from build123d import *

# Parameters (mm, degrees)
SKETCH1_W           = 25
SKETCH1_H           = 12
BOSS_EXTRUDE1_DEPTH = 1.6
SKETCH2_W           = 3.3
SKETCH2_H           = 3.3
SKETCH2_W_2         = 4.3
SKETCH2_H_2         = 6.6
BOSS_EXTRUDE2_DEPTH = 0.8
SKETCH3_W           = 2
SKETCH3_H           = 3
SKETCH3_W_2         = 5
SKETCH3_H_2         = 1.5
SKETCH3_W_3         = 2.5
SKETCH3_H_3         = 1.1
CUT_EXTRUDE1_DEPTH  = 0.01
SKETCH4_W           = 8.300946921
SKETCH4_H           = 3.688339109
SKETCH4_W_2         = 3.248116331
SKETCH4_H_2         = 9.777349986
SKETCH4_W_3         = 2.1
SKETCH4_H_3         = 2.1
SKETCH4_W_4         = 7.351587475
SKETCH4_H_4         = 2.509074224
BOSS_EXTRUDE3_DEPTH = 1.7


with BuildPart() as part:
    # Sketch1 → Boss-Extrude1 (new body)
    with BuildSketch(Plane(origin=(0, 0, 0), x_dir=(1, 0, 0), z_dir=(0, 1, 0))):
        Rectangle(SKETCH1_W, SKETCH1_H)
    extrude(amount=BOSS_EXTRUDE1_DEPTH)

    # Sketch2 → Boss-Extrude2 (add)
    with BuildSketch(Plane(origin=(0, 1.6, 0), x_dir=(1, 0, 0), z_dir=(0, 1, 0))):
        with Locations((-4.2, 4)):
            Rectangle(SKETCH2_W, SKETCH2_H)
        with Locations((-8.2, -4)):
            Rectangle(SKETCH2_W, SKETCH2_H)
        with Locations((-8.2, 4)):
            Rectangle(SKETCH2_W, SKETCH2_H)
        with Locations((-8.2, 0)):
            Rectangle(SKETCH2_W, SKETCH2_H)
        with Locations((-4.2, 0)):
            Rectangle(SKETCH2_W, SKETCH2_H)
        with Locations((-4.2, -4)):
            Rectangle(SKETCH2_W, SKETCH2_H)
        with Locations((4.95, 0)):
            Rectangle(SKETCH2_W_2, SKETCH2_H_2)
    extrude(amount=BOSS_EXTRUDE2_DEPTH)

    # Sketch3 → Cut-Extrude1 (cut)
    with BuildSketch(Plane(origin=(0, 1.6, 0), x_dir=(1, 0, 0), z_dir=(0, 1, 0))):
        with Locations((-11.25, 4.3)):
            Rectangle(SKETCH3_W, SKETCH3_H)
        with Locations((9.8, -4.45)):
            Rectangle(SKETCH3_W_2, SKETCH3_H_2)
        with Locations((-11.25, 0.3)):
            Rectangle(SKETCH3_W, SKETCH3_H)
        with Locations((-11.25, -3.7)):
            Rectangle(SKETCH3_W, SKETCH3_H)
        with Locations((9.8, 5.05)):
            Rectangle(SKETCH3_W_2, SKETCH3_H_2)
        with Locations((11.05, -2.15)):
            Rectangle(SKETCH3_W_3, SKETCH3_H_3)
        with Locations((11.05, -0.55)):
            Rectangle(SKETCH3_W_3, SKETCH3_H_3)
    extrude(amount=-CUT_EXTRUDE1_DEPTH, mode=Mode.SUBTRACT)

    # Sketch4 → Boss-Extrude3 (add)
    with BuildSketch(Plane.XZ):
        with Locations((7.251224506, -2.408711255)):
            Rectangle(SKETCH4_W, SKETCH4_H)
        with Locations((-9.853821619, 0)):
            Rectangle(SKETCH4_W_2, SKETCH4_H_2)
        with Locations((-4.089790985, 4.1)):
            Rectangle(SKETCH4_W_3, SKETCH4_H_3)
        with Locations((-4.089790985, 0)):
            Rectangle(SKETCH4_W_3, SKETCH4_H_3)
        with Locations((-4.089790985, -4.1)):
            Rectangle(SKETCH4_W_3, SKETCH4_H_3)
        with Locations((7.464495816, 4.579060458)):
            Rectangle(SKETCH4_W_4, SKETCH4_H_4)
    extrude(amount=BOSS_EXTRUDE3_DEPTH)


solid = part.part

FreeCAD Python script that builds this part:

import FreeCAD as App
import Part
import Sketcher
from FreeCAD import Vector
Q = App.Units.Quantity


def add_polygon(sketch, points):
    """Adds a closed chain of lines whose ends are joined by coincident constraints."""
    first, n = sketch.GeometryCount, len(points)
    for a, b in zip(points, points[1:] + points[:1]):
        sketch.addGeometry(Part.LineSegment(App.Vector(*a, 0), App.Vector(*b, 0)), False)
    for i in range(n):
        sketch.addConstraint(Sketcher.Constraint("Coincident", first + i, 2, first + (i + 1) % n, 1))

doc = App.newDocument("Part")
params = doc.addObject("Spreadsheet::Sheet", "Params")
for row, (alias, value) in enumerate([
    ("sketch1_width", "25 mm"),
    ("sketch1_height", "12 mm"),
    ("pad1_length", "1.6 mm"),
    ("sketch2_width", "3.3 mm"),
    ("sketch2_width2", "4.3 mm"),
    ("sketch2_height", "6.6 mm"),
    ("pad2_length", "0.8 mm"),
    ("sketch3_width", "2 mm"),
    ("sketch3_width2", "5 mm"),
    ("sketch3_height", "3 mm"),
    ("sketch3_width3", "2.5 mm"),
    ("sketch3_height2", "1.5 mm"),
    ("pocket1_length", "0.01 mm"),
    ("sketch4_width", "2.1 mm"),
    ("pad3_length", "1.7 mm"),
], start=1):
    params.set(f"A{row}", alias)
    params.set(f"B{row}", "=" + value)
    params.setAlias(f"B{row}", alias)

body = doc.addObject("PartDesign::Body", "Body")

# Sketch on XZ plane
sketch1 = body.newObject("Sketcher::SketchObject", "Sketch")
sketch1.AttachmentSupport = (doc.getObject("XZ_Plane"), [""])
sketch1.MapMode = "FlatFace"
add_polygon(sketch1, [(-12.5, -6), (-12.5, 6), (12.5, 6), (12.5, -6)])  # lines 0-3
sketch1.addConstraint([
    Sketcher.Constraint("Vertical", 0),
    Sketcher.Constraint("Horizontal", 1),
    Sketcher.Constraint("Vertical", 2),
    Sketcher.Constraint("Horizontal", 3),
    Sketcher.Constraint("Symmetric", 0, 2, 2, 2, -1, 1),
    Sketcher.Constraint("DistanceX", 1, 1, 1, 2, Q("25 mm")),
    Sketcher.Constraint("DistanceY", 0, 1, 0, 2, Q("12 mm")),
])
sketch1.setExpression("Constraints[9]", "Params.sketch1_width")
sketch1.setExpression("Constraints[10]", "Params.sketch1_height")
pad1 = body.newObject("PartDesign::Pad", "Pad")
pad1.Profile = sketch1
pad1.setExpression("Length", "Params.pad1_length")
pad1.Reversed = True

# Sketch on XZ plane
sketch2 = body.newObject("Sketcher::SketchObject", "Sketch001")
sketch2.AttachmentSupport = (doc.getObject("XZ_Plane"), [""])
sketch2.MapMode = "FlatFace"
sketch2.AttachmentOffset = App.Placement(Vector(0, 0, -1.6), App.Rotation())
add_polygon(sketch2, [(-5.85, -5.65), (-5.85, -2.35), (-2.55, -2.35), (-2.55, -5.65)])  # lines 0-3
add_polygon(sketch2, [(-9.85, 2.35), (-9.85, 5.65), (-6.55, 5.65), (-6.55, 2.35)])  # lines 4-7
add_polygon(sketch2, [(-9.85, -5.65), (-9.85, -2.35), (-6.55, -2.35), (-6.55, -5.65)])  # lines 8-11
add_polygon(sketch2, [(-9.85, -1.65), (-9.85, 1.65), (-6.55, 1.65), (-6.55, -1.65)])  # lines 12-15
add_polygon(sketch2, [(-5.85, -1.65), (-5.85, 1.65), (-2.55, 1.65), (-2.55, -1.65)])  # lines 16-19
add_polygon(sketch2, [(-5.85, 2.35), (-5.85, 5.65), (-2.55, 5.65), (-2.55, 2.35)])  # lines 20-23
add_polygon(sketch2, [(2.8, -3.3), (2.8, 3.3), (7.1, 3.3), (7.1, -3.3)])  # lines 24-27
sketch2.addConstraint([
    Sketcher.Constraint("Vertical", 0),
    Sketcher.Constraint("Horizontal", 1),
    Sketcher.Constraint("Vertical", 2),
    Sketcher.Constraint("Horizontal", 3),
    Sketcher.Constraint("Vertical", 4),
    Sketcher.Constraint("Horizontal", 5),
    Sketcher.Constraint("Vertical", 6),
    Sketcher.Constraint("Horizontal", 7),
    Sketcher.Constraint("Vertical", 8),
    Sketcher.Constraint("Horizontal", 9),
    Sketcher.Constraint("Vertical", 10),
    Sketcher.Constraint("Horizontal", 11),
    Sketcher.Constraint("Vertical", 12),
    Sketcher.Constraint("Horizontal", 13),
    Sketcher.Constraint("Vertical", 14),
    Sketcher.Constraint("Horizontal", 15),
    Sketcher.Constraint("Vertical", 16),
    Sketcher.Constraint("Horizontal", 17),
    Sketcher.Constraint("Vertical", 18),
    Sketcher.Constraint("Horizontal", 19),
    Sketcher.Constraint("Vertical", 20),
    Sketcher.Constraint("Horizontal", 21),
    Sketcher.Constraint("Vertical", 22),
    Sketcher.Constraint("Horizontal", 23),
    Sketcher.Constraint("Vertical", 24),
    Sketcher.Constraint("Horizontal", 25),
    Sketcher.Constraint("Vertical", 26),
    Sketcher.Constraint("Horizontal", 27),
    Sketcher.Constraint("Symmetric", 7, 2, 8, 2, -1),
    Sketcher.Constraint("Symmetric", 5, 2, 10, 2, -1),
    Sketcher.Constraint("Symmetric", 3, 2, 20, 2, -1),
    Sketcher.Constraint("Symmetric", 1, 2, 22, 2, -1),
    Sketcher.Constraint("Horizontal", 1, 2, 8, 2),
    Sketcher.Constraint("Horizontal", 3, 2, 10, 2),
    Sketcher.Constraint("Horizontal", 13, 2, 16, 2),
    Sketcher.Constraint("Horizontal", 15, 2, 18, 2),
    Sketcher.Constraint("Vertical", 11, 2, 12, 2),
    Sketcher.Constraint("Vertical", 10, 2, 13, 2),
    Sketcher.Constraint("Vertical", 3, 2, 16, 2),
    Sketcher.Constraint("Vertical", 2, 2, 17, 2),
    Sketcher.Constraint("Equal", 3, 5),
    Sketcher.Constraint("Equal", 23, 0),
    Sketcher.Constraint("Equal", 10, 12),
    Sketcher.Constraint("DistanceX", 1, 1, 1, 2, Q("3.3 mm")),
    Sketcher.Constraint("DistanceX", 25, 1, 25, 2, Q("4.3 mm")),
    Sketcher.Constraint("DistanceY", 24, 1, 24, 2, Q("6.6 mm")),
    Sketcher.Constraint("DistanceX", 4, 2, 0, 2, Q("4 mm")),
    Sketcher.Constraint("DistanceY", 0, 2, 4, 2, Q("8 mm")),
    Sketcher.Constraint("DistanceY", 12, 2, 4, 2, Q("4 mm")),
    Sketcher.Constraint("DistanceX", -1, 1, 24, 2, Q("2.8 mm")),
    Sketcher.Constraint("DistanceY", -1, 1, 24, 2, Q("3.3 mm")),
    Sketcher.Constraint("DistanceX", 0, 2, -1, 1, Q("5.85 mm")),
])
sketch2.setExpression("Constraints[71]", "Params.sketch2_width")
sketch2.setExpression("Constraints[72]", "Params.sketch2_width2")
sketch2.setExpression("Constraints[73]", "Params.sketch2_height")
pad2 = body.newObject("PartDesign::Pad", "Pad001")
pad2.Profile = sketch2
pad2.setExpression("Length", "Params.pad2_length")
pad2.Reversed = True

# Sketch on XZ plane
sketch3 = body.newObject("Sketcher::SketchObject", "Sketch002")
sketch3.AttachmentSupport = (doc.getObject("XZ_Plane"), [""])
sketch3.MapMode = "FlatFace"
sketch3.AttachmentOffset = App.Placement(Vector(0, 0, -1.6), App.Rotation())
add_polygon(sketch3, [(-12.25, -5.8), (-12.25, -2.8), (-10.25, -2.8), (-10.25, -5.8)])  # lines 0-3
add_polygon(sketch3, [(7.3, 3.7), (7.3, 5.2), (12.3, 5.2), (12.3, 3.7)])  # lines 4-7
add_polygon(sketch3, [(-12.25, -1.8), (-12.25, 1.2), (-10.25, 1.2), (-10.25, -1.8)])  # lines 8-11
add_polygon(sketch3, [(-12.25, 2.2), (-12.25, 5.2), (-10.25, 5.2), (-10.25, 2.2)])  # lines 12-15
add_polygon(sketch3, [(7.3, -5.8), (7.3, -4.3), (12.3, -4.3), (12.3, -5.8)])  # lines 16-19
add_polygon(sketch3, [(9.8, 1.6), (9.8, 2.7), (12.3, 2.7), (12.3, 1.6)])  # lines 20-23
add_polygon(sketch3, [(9.8, 0), (9.8, 1.1), (12.3, 1.1), (12.3, 0)])  # lines 24-27
sketch3.addConstraint([
    Sketcher.Constraint("Vertical", 0),
    Sketcher.Constraint("Horizontal", 1),
    Sketcher.Constraint("Vertical", 2),
    Sketcher.Constraint("Horizontal", 3),
    Sketcher.Constraint("Vertical", 4),
    Sketcher.Constraint("Horizontal", 5),
    Sketcher.Constraint("Vertical", 6),
    Sketcher.Constraint("Horizontal", 7),
    Sketcher.Constraint("Vertical", 8),
    Sketcher.Constraint("Horizontal", 9),
    Sketcher.Constraint("Vertical", 10),
    Sketcher.Constraint("Horizontal", 11),
    Sketcher.Constraint("Vertical", 12),
    Sketcher.Constraint("Horizontal", 13),
    Sketcher.Constraint("Vertical", 14),
    Sketcher.Constraint("Horizontal", 15),
    Sketcher.Constraint("Vertical", 16),
    Sketcher.Constraint("Horizontal", 17),
    Sketcher.Constraint("Vertical", 18),
    Sketcher.Constraint("Horizontal", 19),
    Sketcher.Constraint("Vertical", 20),
    Sketcher.Constraint("Horizontal", 21),
    Sketcher.Constraint("Vertical", 22),
    Sketcher.Constraint("Horizontal", 23),
    Sketcher.Constraint("Vertical", 24),
    Sketcher.Constraint("Horizontal", 25),
    Sketcher.Constraint("Vertical", 26),
    Sketcher.Constraint("Horizontal", 27),
    Sketcher.Constraint("PointOnObject", 26, 2, -1),
    Sketcher.Constraint("Horizontal", 5, 2, 12, 2),
    Sketcher.Constraint("Horizontal", 3, 2, 18, 2),
    Sketcher.Constraint("Vertical", 3, 2, 8, 2),
    Sketcher.Constraint("Vertical", 2, 2, 9, 2),
    Sketcher.Constraint("Vertical", 11, 2, 12, 2),
    Sketcher.Constraint("Vertical", 10, 2, 13, 2),
    Sketcher.Constraint("Vertical", 7, 2, 16, 2),
    Sketcher.Constraint("Vertical", 6, 2, 17, 2),
    Sketcher.Constraint("Vertical", 18, 2, 21, 2),
    Sketcher.Constraint("Vertical", 23, 2, 24, 2),
    Sketcher.Constraint("Vertical", 22, 2, 25, 2),
    Sketcher.Constraint("Equal", 2, 8),
    Sketcher.Constraint("Equal", 10, 12),
    Sketcher.Constraint("Equal", 6, 16),
    Sketcher.Constraint("Equal", 22, 24),
    Sketcher.Constraint("DistanceX", 1, 1, 1, 2, Q("2 mm")),
    Sketcher.Constraint("DistanceX", 5, 1, 5, 2, Q("5 mm")),
    Sketcher.Constraint("DistanceY", 0, 1, 0, 2, Q("3 mm")),
    Sketcher.Constraint("DistanceX", 21, 1, 21, 2, Q("2.5 mm")),
    Sketcher.Constraint("DistanceY", 4, 1, 4, 2, Q("1.5 mm")),
    Sketcher.Constraint("DistanceY", 20, 1, 20, 2, Q("1.1 mm")),
    Sketcher.Constraint("DistanceY", 1, 2, 4, 2, Q("8 mm")),
    Sketcher.Constraint("DistanceY", 0, 2, 8, 2, Q("4 mm")),
    Sketcher.Constraint("DistanceY", 20, 2, 6, 2, Q("1 mm")),
    Sketcher.Constraint("DistanceY", 0, 2, -1, 1, Q("2.8 mm")),
    Sketcher.Constraint("DistanceX", -1, 1, 4, 2, Q("7.3 mm")),
    Sketcher.Constraint("DistanceX", 0, 2, -1, 1, Q("12.25 mm")),
])
sketch3.setExpression("Constraints[72]", "Params.sketch3_width")
sketch3.setExpression("Constraints[73]", "Params.sketch3_width2")
sketch3.setExpression("Constraints[74]", "Params.sketch3_height")
sketch3.setExpression("Constraints[75]", "Params.sketch3_width3")
sketch3.setExpression("Constraints[76]", "Params.sketch3_height2")
pocket1 = body.newObject("PartDesign::Pocket", "Pocket")
pocket1.Profile = sketch3
pocket1.setExpression("Length", "Params.pocket1_length")
pocket1.Reversed = True

# Sketch on XZ plane
sketch4 = body.newObject("Sketcher::SketchObject", "Sketch003")
sketch4.AttachmentSupport = (doc.getObject("XZ_Plane"), [""])
sketch4.MapMode = "FlatFace"
add_polygon(sketch4, [(3.100751, -0.564542), (3.100751, -4.252881), (11.401698, -4.252881), (11.401698, -0.564542)])  # lines 0-3
add_polygon(sketch4, [(-11.47788, 4.888675), (-11.47788, -4.888675), (-8.229763, -4.888675), (-8.229763, 4.888675)])  # lines 4-7
add_polygon(sketch4, [(-5.139791, 5.15), (-5.139791, 3.05), (-3.039791, 3.05), (-3.039791, 5.15)])  # lines 8-11
add_polygon(sketch4, [(-5.139791, 1.05), (-5.139791, -1.05), (-3.039791, -1.05), (-3.039791, 1.05)])  # lines 12-15
add_polygon(sketch4, [(-5.139791, -3.05), (-5.139791, -5.15), (-3.039791, -5.15), (-3.039791, -3.05)])  # lines 16-19
add_polygon(sketch4, [(3.788702, 5.833598), (3.788702, 3.324523), (11.14029, 3.324523), (11.14029, 5.833598)])  # lines 20-23
sketch4.addConstraint([
    Sketcher.Constraint("Vertical", 0),
    Sketcher.Constraint("Horizontal", 1),
    Sketcher.Constraint("Vertical", 2),
    Sketcher.Constraint("Horizontal", 3),
    Sketcher.Constraint("Vertical", 4),
    Sketcher.Constraint("Horizontal", 5),
    Sketcher.Constraint("Vertical", 6),
    Sketcher.Constraint("Horizontal", 7),
    Sketcher.Constraint("Vertical", 8),
    Sketcher.Constraint("Horizontal", 9),
    Sketcher.Constraint("Vertical", 10),
    Sketcher.Constraint("Horizontal", 11),
    Sketcher.Constraint("Vertical", 12),
    Sketcher.Constraint("Horizontal", 13),
    Sketcher.Constraint("Vertical", 14),
    Sketcher.Constraint("Horizontal", 15),
    Sketcher.Constraint("Vertical", 16),
    Sketcher.Constraint("Horizontal", 17),
    Sketcher.Constraint("Vertical", 18),
    Sketcher.Constraint("Horizontal", 19),
    Sketcher.Constraint("Vertical", 20),
    Sketcher.Constraint("Horizontal", 21),
    Sketcher.Constraint("Vertical", 22),
    Sketcher.Constraint("Horizontal", 23),
    Sketcher.Constraint("Symmetric", 11, 2, 16, 2, -1),
    Sketcher.Constraint("Symmetric", 9, 2, 18, 2, -1),
    Sketcher.Constraint("Vertical", 11, 2, 12, 2),
    Sketcher.Constraint("Vertical", 10, 2, 13, 2),
    Sketcher.Constraint("Equal", 19, 8),
    Sketcher.Constraint("Equal", 10, 12),
    Sketcher.Constraint("DistanceX", 9, 1, 9, 2, Q("2.1 mm")),
    Sketcher.Constraint("DistanceY", 14, 2, 9, 2, Q("2 mm")),
    Sketcher.Constraint("DistanceY", 18, 2, 13, 2, Q("2 mm")),
    Sketcher.Constraint("DistanceY", 0, 2, 0, 1, Q("3.688339 mm")),
    Sketcher.Constraint("DistanceY", 4, 2, 4, 1, Q("9.77735 mm")),
    Sketcher.Constraint("DistanceX", 1, 1, 1, 2, Q("8.300947 mm")),
    Sketcher.Constraint("DistanceX", 5, 1, 5, 2, Q("3.248116 mm")),
    Sketcher.Constraint("DistanceX", 21, 1, 21, 2, Q("7.351587 mm")),
    Sketcher.Constraint("DistanceY", 20, 2, 20, 1, Q("2.509074 mm")),
    Sketcher.Constraint("DistanceX", -1, 1, 0, 2, Q("3.100751 mm")),
    Sketcher.Constraint("DistanceY", 0, 2, -1, 1, Q("4.252881 mm")),
    Sketcher.Constraint("DistanceX", 4, 2, -1, 1, Q("11.47788 mm")),
    Sketcher.Constraint("DistanceX", 8, 2, -1, 1, Q("5.139791 mm")),
    Sketcher.Constraint("DistanceX", -1, 1, 21, 2, Q("11.14029 mm")),
    Sketcher.Constraint("DistanceY", 2, 2, 22, 2, Q("6.398139 mm")),
    Sketcher.Constraint("DistanceY", 4, 2, -1, 1, Q("4.888675 mm")),
])
sketch4.setExpression("Constraints[54]", "Params.sketch4_width")
pad3 = body.newObject("PartDesign::Pad", "Pad002")
pad3.Profile = sketch4
pad3.setExpression("Length", "Params.pad3_length")

doc.recompute()
